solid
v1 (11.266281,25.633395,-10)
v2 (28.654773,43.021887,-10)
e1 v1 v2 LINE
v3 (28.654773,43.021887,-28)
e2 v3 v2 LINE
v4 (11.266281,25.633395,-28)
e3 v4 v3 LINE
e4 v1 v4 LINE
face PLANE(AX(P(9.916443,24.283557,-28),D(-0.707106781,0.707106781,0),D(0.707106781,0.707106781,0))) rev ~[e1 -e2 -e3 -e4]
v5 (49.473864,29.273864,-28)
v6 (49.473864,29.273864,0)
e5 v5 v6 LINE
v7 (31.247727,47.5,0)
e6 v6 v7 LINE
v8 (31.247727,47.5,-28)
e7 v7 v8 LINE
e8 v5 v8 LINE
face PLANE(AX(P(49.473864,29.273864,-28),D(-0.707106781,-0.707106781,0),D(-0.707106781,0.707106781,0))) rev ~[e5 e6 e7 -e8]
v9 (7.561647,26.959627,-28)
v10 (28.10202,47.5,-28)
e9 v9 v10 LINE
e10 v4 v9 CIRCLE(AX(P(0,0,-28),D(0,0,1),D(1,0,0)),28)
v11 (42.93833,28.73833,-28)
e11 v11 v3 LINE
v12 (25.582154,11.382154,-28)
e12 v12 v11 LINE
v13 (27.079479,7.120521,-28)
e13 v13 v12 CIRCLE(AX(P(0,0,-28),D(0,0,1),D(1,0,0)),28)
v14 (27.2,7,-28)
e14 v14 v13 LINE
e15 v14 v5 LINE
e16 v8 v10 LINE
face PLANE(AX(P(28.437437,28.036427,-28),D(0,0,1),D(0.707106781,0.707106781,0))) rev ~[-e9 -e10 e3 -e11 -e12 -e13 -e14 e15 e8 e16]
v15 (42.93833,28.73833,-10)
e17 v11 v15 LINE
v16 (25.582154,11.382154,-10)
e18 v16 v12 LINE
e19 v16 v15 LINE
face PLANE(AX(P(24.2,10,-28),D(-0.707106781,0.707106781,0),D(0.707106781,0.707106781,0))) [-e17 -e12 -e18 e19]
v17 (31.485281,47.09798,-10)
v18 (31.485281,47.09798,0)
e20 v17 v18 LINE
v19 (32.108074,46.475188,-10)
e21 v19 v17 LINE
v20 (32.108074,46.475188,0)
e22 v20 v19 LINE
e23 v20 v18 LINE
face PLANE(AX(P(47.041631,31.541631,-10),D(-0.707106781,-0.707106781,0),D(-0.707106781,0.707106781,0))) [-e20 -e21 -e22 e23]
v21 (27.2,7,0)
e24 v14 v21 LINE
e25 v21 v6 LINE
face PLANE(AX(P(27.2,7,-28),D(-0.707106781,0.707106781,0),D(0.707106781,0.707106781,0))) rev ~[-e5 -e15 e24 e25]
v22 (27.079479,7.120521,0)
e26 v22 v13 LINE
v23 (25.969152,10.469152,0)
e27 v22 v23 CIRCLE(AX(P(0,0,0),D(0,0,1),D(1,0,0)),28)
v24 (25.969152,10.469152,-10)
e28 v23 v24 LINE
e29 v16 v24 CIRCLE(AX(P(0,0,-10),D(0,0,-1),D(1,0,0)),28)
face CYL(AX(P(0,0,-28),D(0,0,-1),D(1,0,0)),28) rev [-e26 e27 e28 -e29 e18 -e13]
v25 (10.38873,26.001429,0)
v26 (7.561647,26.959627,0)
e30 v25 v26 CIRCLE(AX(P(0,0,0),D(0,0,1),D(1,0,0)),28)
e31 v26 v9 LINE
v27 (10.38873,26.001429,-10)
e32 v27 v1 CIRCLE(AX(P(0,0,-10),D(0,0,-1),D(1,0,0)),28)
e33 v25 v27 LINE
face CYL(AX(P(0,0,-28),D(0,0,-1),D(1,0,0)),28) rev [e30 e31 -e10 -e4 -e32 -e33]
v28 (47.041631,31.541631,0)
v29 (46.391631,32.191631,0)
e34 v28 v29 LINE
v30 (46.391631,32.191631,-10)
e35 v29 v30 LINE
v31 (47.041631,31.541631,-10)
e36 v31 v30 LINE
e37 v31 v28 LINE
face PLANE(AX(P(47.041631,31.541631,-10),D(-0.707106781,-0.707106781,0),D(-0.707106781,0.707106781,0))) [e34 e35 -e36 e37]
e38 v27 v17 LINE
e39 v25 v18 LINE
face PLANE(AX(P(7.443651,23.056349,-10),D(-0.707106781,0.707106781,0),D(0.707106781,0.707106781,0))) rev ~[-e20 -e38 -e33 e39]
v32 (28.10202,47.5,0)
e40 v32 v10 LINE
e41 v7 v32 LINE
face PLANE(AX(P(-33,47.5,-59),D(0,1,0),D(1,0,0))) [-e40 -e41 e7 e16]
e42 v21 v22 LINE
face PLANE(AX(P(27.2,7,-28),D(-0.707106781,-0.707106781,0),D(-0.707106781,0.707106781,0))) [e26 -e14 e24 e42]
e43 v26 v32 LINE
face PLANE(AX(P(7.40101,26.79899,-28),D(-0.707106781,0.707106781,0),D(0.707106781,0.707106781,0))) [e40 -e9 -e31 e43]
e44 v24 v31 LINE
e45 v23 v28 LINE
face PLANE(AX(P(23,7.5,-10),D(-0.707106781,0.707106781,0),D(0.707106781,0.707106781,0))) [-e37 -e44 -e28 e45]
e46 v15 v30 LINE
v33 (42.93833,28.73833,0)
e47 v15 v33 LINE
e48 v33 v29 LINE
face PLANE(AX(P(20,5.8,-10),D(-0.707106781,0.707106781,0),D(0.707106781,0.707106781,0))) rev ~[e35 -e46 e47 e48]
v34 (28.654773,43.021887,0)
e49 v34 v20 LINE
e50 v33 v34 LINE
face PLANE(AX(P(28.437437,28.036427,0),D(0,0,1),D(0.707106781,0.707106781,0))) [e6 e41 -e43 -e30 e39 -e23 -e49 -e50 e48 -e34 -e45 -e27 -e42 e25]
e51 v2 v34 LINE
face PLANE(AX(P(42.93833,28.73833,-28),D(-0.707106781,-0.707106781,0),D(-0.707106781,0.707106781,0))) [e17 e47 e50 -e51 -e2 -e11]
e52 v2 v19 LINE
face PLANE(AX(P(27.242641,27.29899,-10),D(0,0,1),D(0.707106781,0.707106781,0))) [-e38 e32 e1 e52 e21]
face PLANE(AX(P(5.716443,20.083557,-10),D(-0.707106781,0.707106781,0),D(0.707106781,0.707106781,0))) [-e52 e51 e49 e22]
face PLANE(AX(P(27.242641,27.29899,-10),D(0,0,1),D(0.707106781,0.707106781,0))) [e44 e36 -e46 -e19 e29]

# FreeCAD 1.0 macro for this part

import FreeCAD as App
import Part
import Sketcher
from FreeCAD import Vector
Q = App.Units.Quantity


def add_polygon(sketch, points):
    """Adds a closed chain of lines whose ends are joined by coincident constraints."""
    first, n = sketch.GeometryCount, len(points)
    for a, b in zip(points, points[1:] + points[:1]):
        sketch.addGeometry(Part.LineSegment(App.Vector(*a, 0), App.Vector(*b, 0)), False)
    for i in range(n):
        sketch.addConstraint(Sketcher.Constraint("Coincident", first + i, 2, first + (i + 1) % n, 1))

doc = App.newDocument("Part")
body = doc.addObject("PartDesign::Body", "Body")

# Sketch on XY plane
sketch1 = body.newObject("Sketcher::SketchObject", "Sketch")
sketch1.AttachmentSupport = (doc.getObject("XY_Plane"), [""])
sketch1.MapMode = "FlatFace"
sketch1.AttachmentOffset = App.Placement(Vector(0, 0, -59), App.Rotation())
add_polygon(sketch1, [(-33, 49.5), (-33, 47.5), (67, 47.5), (67, 49.5)])  # lines 0-3
sketch1.addConstraint(Sketcher.Constraint("Vertical", 0))
sketch1.addConstraint(Sketcher.Constraint("Horizontal", 1))
sketch1.addConstraint(Sketcher.Constraint("Vertical", 2))
sketch1.addConstraint(Sketcher.Constraint("Horizontal", 3))
sketch1.addConstraint(Sketcher.Constraint("DistanceX", 1, 1, 1, 2, Q("100 mm")))
sketch1.addConstraint(Sketcher.Constraint("DistanceY", 0, 2, 0, 1, Q("2 mm")))
sketch1.addConstraint(Sketcher.Constraint("DistanceX", 0, 2, -1, 1, Q("33 mm")))
sketch1.addConstraint(Sketcher.Constraint("DistanceY", -1, 1, 0, 2, Q("47.5 mm")))
pad1 = body.newObject("PartDesign::Pad", "Pad")
pad1.Profile = sketch1
pad1.Length = 60
body2 = doc.addObject("PartDesign::Body", "Body001")

# Sketch on XY plane
sketch2 = body2.newObject("Sketcher::SketchObject", "Sketch001")
sketch2.AttachmentSupport = (doc.getObject("XY_Plane001"), [""])
sketch2.MapMode = "FlatFace"
sketch2.AttachmentOffset = App.Placement(Vector(0, 0, -28), App.Rotation())
sketch2.addGeometry(Part.Circle(Vector(0, 0, 0), Vector(0, 0, 1), 28), False)
sketch2.addConstraint(Sketcher.Constraint("Coincident", 0, 3, -1, 1))
sketch2.addConstraint(Sketcher.Constraint("Diameter", 0, Q("56 mm")))
pad2 = body2.newObject("PartDesign::Pad", "Pad001")
pad2.Profile = sketch2
pad2.Length = 28
body3 = doc.addObject("PartDesign::Body", "Body002")

# Sketch on XY plane
sketch3 = body3.newObject("Sketcher::SketchObject", "Sketch002")
sketch3.AttachmentSupport = (doc.getObject("XY_Plane002"), [""])
sketch3.MapMode = "FlatFace"
add_polygon(sketch3, [(0, 20.2), (0, 0), (40, 0), (40, 20.2)])  # lines 0-3
sketch3.addConstraint(Sketcher.Constraint("Vertical", 0))
sketch3.addConstraint(Sketcher.Constraint("Horizontal", 1))
sketch3.addConstraint(Sketcher.Constraint("Vertical", 2))
sketch3.addConstraint(Sketcher.Constraint("Horizontal", 3))
sketch3.addConstraint(Sketcher.Constraint("Coincident", 0, 2, -1, 1))
sketch3.addConstraint(Sketcher.Constraint("DistanceX", 1, 1, 1, 2, Q("40 mm")))
sketch3.addConstraint(Sketcher.Constraint("DistanceY", 0, 2, 0, 1, Q("20.2 mm")))
pad3 = body3.newObject("PartDesign::Pad", "Pad002")
pad3.Profile = sketch3
pad3.Length = 10
body4 = doc.addObject("PartDesign::Body", "Body003")
doc.recompute()

body3.Placement = App.Placement(Vector(20, 5.8, -10), App.Rotation(Vector(0, 0, 1), 45))
boolean = body4.newObject("PartDesign::Boolean", "Boolean")
boolean.Type = "Fuse"
boolean.addObjects([body3])
body5 = doc.addObject("PartDesign::Body", "Body004")

# Sketch on XY plane
sketch4 = body5.newObject("Sketcher::SketchObject", "Sketch003")
sketch4.AttachmentSupport = (doc.getObject("XY_Plane004"), [""])
sketch4.MapMode = "FlatFace"
add_polygon(sketch4, [(0, 22), (0, 0), (34, 0), (34, 22)])  # lines 0-3
sketch4.addConstraint(Sketcher.Constraint("Vertical", 0))
sketch4.addConstraint(Sketcher.Constraint("Horizontal", 1))
sketch4.addConstraint(Sketcher.Constraint("Vertical", 2))
sketch4.addConstraint(Sketcher.Constraint("Horizontal", 3))
sketch4.addConstraint(Sketcher.Constraint("Coincident", 0, 2, -1, 1))
sketch4.addConstraint(Sketcher.Constraint("DistanceX", 1, 1, 1, 2, Q("34 mm")))
sketch4.addConstraint(Sketcher.Constraint("DistanceY", 0, 2, 0, 1, Q("22 mm")))
pad4 = body5.newObject("PartDesign::Pad", "Pad003")
pad4.Profile = sketch4
pad4.Length = 10
body6 = doc.addObject("PartDesign::Body", "Body005")
body6.AllowCompound = True
doc.recompute()

body5.Placement = App.Placement(Vector(23, 7.5, -10), App.Rotation(Vector(0, 0, 1), 45))
boolean2 = body6.newObject("PartDesign::Boolean", "Boolean001")
boolean2.Type = "Fuse"
boolean2.addObjects([body5])
doc.recompute()

boolean3 = body6.newObject("PartDesign::Boolean", "Boolean002")
boolean3.Type = "Cut"
boolean3.addObjects([body4])
body7 = doc.addObject("PartDesign::Body", "Body006")

# Sketch on XY plane
sketch5 = body7.newObject("Sketcher::SketchObject", "Sketch004")
sketch5.AttachmentSupport = (doc.getObject("XY_Plane006"), [""])
sketch5.MapMode = "FlatFace"
add_polygon(sketch5, [(0, 20.2), (0, 0), (26.5, 0), (26.5, 20.2)])  # lines 0-3
sketch5.addConstraint(Sketcher.Constraint("Vertical", 0))
sketch5.addConstraint(Sketcher.Constraint("Horizontal", 1))
sketch5.addConstraint(Sketcher.Constraint("Vertical", 2))
sketch5.addConstraint(Sketcher.Constraint("Horizontal", 3))
sketch5.addConstraint(Sketcher.Constraint("Coincident", 0, 2, -1, 1))
sketch5.addConstraint(Sketcher.Constraint("DistanceX", 1, 1, 1, 2, Q("26.5 mm")))
sketch5.addConstraint(Sketcher.Constraint("DistanceY", 0, 2, 0, 1, Q("20.2 mm")))
pad5 = body7.newObject("PartDesign::Pad", "Pad004")
pad5.Profile = sketch5
pad5.Length = 28
body8 = doc.addObject("PartDesign::Body", "Body007")
doc.recompute()

body7.Placement = App.Placement(Vector(24.2, 10, -28), App.Rotation(Vector(0, 0, 1), 45))
boolean4 = body8.newObject("PartDesign::Boolean", "Boolean003")
boolean4.Type = "Fuse"
boolean4.addObjects([body7])
body9 = doc.addObject("PartDesign::Body", "Body008")

# Sketch on XY plane
sketch6 = body9.newObject("Sketcher::SketchObject", "Sketch005")
sketch6.AttachmentSupport = (doc.getObject("XY_Plane008"), [""])
sketch6.MapMode = "FlatFace"
add_polygon(sketch6, [(0, 28), (0, 0), (31.5, 0), (31.5, 28)])  # lines 0-3
sketch6.addConstraint(Sketcher.Constraint("Vertical", 0))
sketch6.addConstraint(Sketcher.Constraint("Horizontal", 1))
sketch6.addConstraint(Sketcher.Constraint("Vertical", 2))
sketch6.addConstraint(Sketcher.Constraint("Horizontal", 3))
sketch6.addConstraint(Sketcher.Constraint("Coincident", 0, 2, -1, 1))
sketch6.addConstraint(Sketcher.Constraint("DistanceY", 0, 2, 0, 1, Q("28 mm")))
sketch6.addConstraint(Sketcher.Constraint("DistanceX", 1, 1, 1, 2, Q("31.5 mm")))
pad6 = body9.newObject("PartDesign::Pad", "Pad005")
pad6.Profile = sketch6
pad6.Length = 28
body10 = doc.addObject("PartDesign::Body", "Body009")
doc.recompute()

body9.Placement = App.Placement(Vector(27.2, 7, -28), App.Rotation(Vector(0, 0, 1), 45))
boolean5 = body10.newObject("PartDesign::Boolean", "Boolean004")
boolean5.Type = "Fuse"
boolean5.addObjects([body9])
doc.recompute()

boolean6 = body10.newObject("PartDesign::Boolean", "Boolean005")
boolean6.Type = "Cut"
boolean6.addObjects([body8])
doc.recompute()

boolean7 = body10.newObject("PartDesign::Boolean", "Boolean006")
boolean7.Type = "Cut"
boolean7.addObjects([body6])
doc.recompute()

boolean8 = body10.newObject("PartDesign::Boolean", "Boolean007")
boolean8.Type = "Cut"
boolean8.addObjects([body2])
doc.recompute()

boolean9 = body10.newObject("PartDesign::Boolean", "Boolean008")
boolean9.Type = "Cut"
boolean9.addObjects([body])

doc.recompute()
